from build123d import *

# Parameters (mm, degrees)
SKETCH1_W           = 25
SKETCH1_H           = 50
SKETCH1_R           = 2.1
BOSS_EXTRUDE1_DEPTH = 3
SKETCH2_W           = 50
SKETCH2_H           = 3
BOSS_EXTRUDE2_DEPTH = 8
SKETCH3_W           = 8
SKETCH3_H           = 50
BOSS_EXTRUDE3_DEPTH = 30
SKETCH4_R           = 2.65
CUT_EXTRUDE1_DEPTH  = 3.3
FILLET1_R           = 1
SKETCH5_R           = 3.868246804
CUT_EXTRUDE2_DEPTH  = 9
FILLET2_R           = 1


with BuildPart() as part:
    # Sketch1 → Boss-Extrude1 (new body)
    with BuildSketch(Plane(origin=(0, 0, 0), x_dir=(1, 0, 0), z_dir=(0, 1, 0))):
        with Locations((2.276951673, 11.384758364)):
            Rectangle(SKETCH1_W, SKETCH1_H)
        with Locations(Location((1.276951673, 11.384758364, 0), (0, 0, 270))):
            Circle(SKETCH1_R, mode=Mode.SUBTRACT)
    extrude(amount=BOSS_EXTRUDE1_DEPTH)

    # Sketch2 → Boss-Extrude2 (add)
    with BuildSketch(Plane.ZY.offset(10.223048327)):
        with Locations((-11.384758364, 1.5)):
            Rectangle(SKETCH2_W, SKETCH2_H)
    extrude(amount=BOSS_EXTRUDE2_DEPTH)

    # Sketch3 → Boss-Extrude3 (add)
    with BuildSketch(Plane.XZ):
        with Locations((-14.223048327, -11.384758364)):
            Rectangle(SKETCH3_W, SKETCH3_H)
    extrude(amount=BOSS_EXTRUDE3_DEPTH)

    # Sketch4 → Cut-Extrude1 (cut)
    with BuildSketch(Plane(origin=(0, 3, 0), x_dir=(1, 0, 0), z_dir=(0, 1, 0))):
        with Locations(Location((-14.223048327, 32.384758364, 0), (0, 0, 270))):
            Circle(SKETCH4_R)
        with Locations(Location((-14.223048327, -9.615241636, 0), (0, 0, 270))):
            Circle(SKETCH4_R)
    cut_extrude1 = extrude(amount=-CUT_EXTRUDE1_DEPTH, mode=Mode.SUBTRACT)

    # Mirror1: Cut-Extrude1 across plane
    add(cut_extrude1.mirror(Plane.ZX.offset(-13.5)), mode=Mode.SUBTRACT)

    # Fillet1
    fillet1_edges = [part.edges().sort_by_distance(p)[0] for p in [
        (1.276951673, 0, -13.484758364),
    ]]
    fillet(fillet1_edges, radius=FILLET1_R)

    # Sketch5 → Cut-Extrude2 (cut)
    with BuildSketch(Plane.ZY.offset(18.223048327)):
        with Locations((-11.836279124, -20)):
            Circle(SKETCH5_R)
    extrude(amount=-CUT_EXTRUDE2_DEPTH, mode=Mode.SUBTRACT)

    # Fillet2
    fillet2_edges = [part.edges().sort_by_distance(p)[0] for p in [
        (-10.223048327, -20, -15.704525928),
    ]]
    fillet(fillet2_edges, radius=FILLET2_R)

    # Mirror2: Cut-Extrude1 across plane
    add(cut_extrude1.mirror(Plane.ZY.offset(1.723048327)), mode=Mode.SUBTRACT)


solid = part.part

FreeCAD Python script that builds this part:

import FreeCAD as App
import Part
import Sketcher
from FreeCAD import Vector


def edges_at(feature, points):
    """Names of the edges that pass closest to the given points."""
    edges = feature.Shape.Edges
    near = lambda p: min(range(len(edges)), key=lambda i: edges[i].distToShape(Part.Vertex(*p))[0])
    return sorted({f"Edge{near(p) + 1}" for p in points})


def add_polygon(sketch, points):
    """Adds a closed chain of lines whose ends are joined by coincident constraints."""
    first, n = sketch.GeometryCount, len(points)
    for a, b in zip(points, points[1:] + points[:1]):
        sketch.addGeometry(Part.LineSegment(App.Vector(*a, 0), App.Vector(*b, 0)), False)
    for i in range(n):
        sketch.addConstraint(Sketcher.Constraint("Coincident", first + i, 2, first + (i + 1) % n, 1))

doc = App.newDocument("Part")
body = doc.addObject("PartDesign::Body", "Body")

# Sketch on XZ plane
sketch1 = body.newObject("Sketcher::SketchObject", "Sketch")
sketch1.AttachmentSupport = (doc.getObject("XZ_Plane"), [""])
sketch1.MapMode = "FlatFace"
add_polygon(sketch1, [(-10.2, -36.4), (-10.2, 13.6), (14.8, 13.6), (14.8, -36.4)])  # lines 0-3
sketch1.addGeometry(Part.Circle(Vector(1.3, -11.4, 0), Vector(0, 0, 1), 2.1), False)  # 4
sketch1.addConstraint([
    Sketcher.Constraint("Vertical", 0),
    Sketcher.Constraint("Horizontal", 1),
    Sketcher.Constraint("Vertical", 2),
    Sketcher.Constraint("Horizontal", 3),
    Sketcher.Constraint("Diameter", 4, 4.2),
    Sketcher.Constraint("DistanceX", 1, 1, 1, 2, 25.0),
    Sketcher.Constraint("DistanceY", 0, 1, 0, 2, 50.0),
    Sketcher.Constraint("DistanceY", 4, 3, 0, 2, 25.0),
    Sketcher.Constraint("DistanceX", 0, 2, 4, 3, 11.5),
    Sketcher.Constraint("DistanceX", -1, 1, 4, 3, 1.276952),
    Sketcher.Constraint("DistanceY", 4, 3, -1, 1, 11.384758),
])
pad1 = body.newObject("PartDesign::Pad", "Pad")
pad1.Profile = sketch1
pad1.Length = 3
pad1.Reversed = True

# Sketch on YZ plane
sketch2 = body.newObject("Sketcher::SketchObject", "Sketch001")
sketch2.AttachmentSupport = (doc.getObject("YZ_Plane"), [""])
sketch2.MapMode = "FlatFace"
sketch2.AttachmentOffset = App.Placement(Vector(0, 0, -10.223048), App.Rotation())
add_polygon(sketch2, [(3, -36.4), (0, -36.4), (0, 13.6), (3, 13.6)])  # lines 0-3
sketch2.addConstraint([
    Sketcher.Constraint("Horizontal", 0),
    Sketcher.Constraint("Vertical", 1),
    Sketcher.Constraint("Horizontal", 2),
    Sketcher.Constraint("Vertical", 3),
    Sketcher.Constraint("PointOnObject", 0, 2, -2),
    Sketcher.Constraint("DistanceX", 0, 2, 0, 1, 3.0),
    Sketcher.Constraint("DistanceY", 1, 1, 1, 2, 50.0),
    Sketcher.Constraint("DistanceY", 0, 2, -1, 1, 36.384758),
])
pad2 = body.newObject("PartDesign::Pad", "Pad001")
pad2.Profile = sketch2
pad2.Length = 8
pad2.Reversed = True

# Sketch on XZ plane
sketch3 = body.newObject("Sketcher::SketchObject", "Sketch002")
sketch3.AttachmentSupport = (doc.getObject("XZ_Plane"), [""])
sketch3.MapMode = "FlatFace"
add_polygon(sketch3, [(-18, 14), (-18, -36), (-10, -36), (-10, 14)])  # lines 0-3
sketch3.addConstraint([
    Sketcher.Constraint("Vertical", 0),
    Sketcher.Constraint("Horizontal", 1),
    Sketcher.Constraint("Vertical", 2),
    Sketcher.Constraint("Horizontal", 3),
    Sketcher.Constraint("DistanceX", 1, 1, 1, 2, 8.0),
    Sketcher.Constraint("DistanceY", 0, 2, 0, 1, 50.0),
    Sketcher.Constraint("DistanceX", 0, 2, -1, 1, 18.223048),
    Sketcher.Constraint("DistanceY", 0, 2, -1, 1, 36.384758),
])
pad3 = body.newObject("PartDesign::Pad", "Pad002")
pad3.Profile = sketch3
pad3.Length = 30

# Sketch on XZ plane
sketch4 = body.newObject("Sketcher::SketchObject", "Sketch003")
sketch4.AttachmentSupport = (doc.getObject("XZ_Plane"), [""])
sketch4.MapMode = "FlatFace"
sketch4.AttachmentOffset = App.Placement(Vector(0, 0, -3), App.Rotation())
sketch4.addGeometry([
    Part.Circle(Vector(-14.2, -32.4, 0), Vector(0, 0, 1), 2.6),
    Part.Circle(Vector(-14.2, 9.6, 0), Vector(0, 0, 1), 2.6),
], False)
sketch4.addConstraint([
    Sketcher.Constraint("Equal", 0, 1),
    Sketcher.Constraint("Vertical", 0, 3, 1, 3),
    Sketcher.Constraint("Diameter", 0, 5.3),
    Sketcher.Constraint("DistanceY", 0, 3, 1, 3, 42.0),
    Sketcher.Constraint("DistanceX", 0, 3, -1, 1, 14.223048),
    Sketcher.Constraint("DistanceY", 0, 3, -1, 1, 32.384758),
])
pocket1 = body.newObject("PartDesign::Pocket", "Pocket")
pocket1.Profile = sketch4
pocket1.Length = 3.3
pocket1.Reversed = True
doc.recompute()

datumplane = body.newObject("PartDesign::Plane", "DatumPlane")
datumplane.AttachmentSupport = (doc.getObject("XZ_Plane"), [""])
datumplane.MapMode = "FlatFace"
datumplane.AttachmentOffset = App.Placement(Vector(0, 0, 13.5), App.Rotation())
mirrored = body.newObject("PartDesign::Mirrored", "Mirrored")
mirrored.Originals = [pocket1]
mirrored.MirrorPlane = (datumplane, [""])
body.Tip = mirrored
doc.recompute()

fillet = body.newObject("PartDesign::Fillet", "Fillet")
fillet.Base = (mirrored, edges_at(mirrored, [(1.277, 0, -13.485)]))
fillet.Radius = 1

# Sketch on YZ plane
sketch5 = body.newObject("Sketcher::SketchObject", "Sketch004")
sketch5.AttachmentSupport = (doc.getObject("YZ_Plane"), [""])
sketch5.MapMode = "FlatFace"
sketch5.AttachmentOffset = App.Placement(Vector(0, 0, -18.223048), App.Rotation())
sketch5.addGeometry(Part.Circle(Vector(-20, -11.8, 0), Vector(0, 0, 1), 3.9), False)
sketch5.addConstraint([
    Sketcher.Constraint("DistanceX", 0, 3, -1, 1, 20.0),
    Sketcher.Constraint("Diameter", 0, 7.736494),
    Sketcher.Constraint("DistanceY", 0, 3, -1, 1, 11.836279),
])
pocket2 = body.newObject("PartDesign::Pocket", "Pocket001")
pocket2.Profile = sketch5
pocket2.Length = 9
pocket2.Reversed = True
doc.recompute()

fillet2 = body.newObject("PartDesign::Fillet", "Fillet001")
fillet2.Base = (pocket2, edges_at(pocket2, [(-10.223, -20, -15.705)]))
fillet2.Radius = 1
doc.recompute()

datumplane2 = body.newObject("PartDesign::Plane", "DatumPlane001")
datumplane2.AttachmentSupport = (doc.getObject("YZ_Plane"), [""])
datumplane2.MapMode = "FlatFace"
datumplane2.AttachmentOffset = App.Placement(Vector(0, 0, -1.723048), App.Rotation())
mirrored2 = body.newObject("PartDesign::Mirrored", "Mirrored001")
mirrored2.Originals = [pocket1]
mirrored2.MirrorPlane = (datumplane2, [""])
body.Tip = mirrored2

doc.recompute()
